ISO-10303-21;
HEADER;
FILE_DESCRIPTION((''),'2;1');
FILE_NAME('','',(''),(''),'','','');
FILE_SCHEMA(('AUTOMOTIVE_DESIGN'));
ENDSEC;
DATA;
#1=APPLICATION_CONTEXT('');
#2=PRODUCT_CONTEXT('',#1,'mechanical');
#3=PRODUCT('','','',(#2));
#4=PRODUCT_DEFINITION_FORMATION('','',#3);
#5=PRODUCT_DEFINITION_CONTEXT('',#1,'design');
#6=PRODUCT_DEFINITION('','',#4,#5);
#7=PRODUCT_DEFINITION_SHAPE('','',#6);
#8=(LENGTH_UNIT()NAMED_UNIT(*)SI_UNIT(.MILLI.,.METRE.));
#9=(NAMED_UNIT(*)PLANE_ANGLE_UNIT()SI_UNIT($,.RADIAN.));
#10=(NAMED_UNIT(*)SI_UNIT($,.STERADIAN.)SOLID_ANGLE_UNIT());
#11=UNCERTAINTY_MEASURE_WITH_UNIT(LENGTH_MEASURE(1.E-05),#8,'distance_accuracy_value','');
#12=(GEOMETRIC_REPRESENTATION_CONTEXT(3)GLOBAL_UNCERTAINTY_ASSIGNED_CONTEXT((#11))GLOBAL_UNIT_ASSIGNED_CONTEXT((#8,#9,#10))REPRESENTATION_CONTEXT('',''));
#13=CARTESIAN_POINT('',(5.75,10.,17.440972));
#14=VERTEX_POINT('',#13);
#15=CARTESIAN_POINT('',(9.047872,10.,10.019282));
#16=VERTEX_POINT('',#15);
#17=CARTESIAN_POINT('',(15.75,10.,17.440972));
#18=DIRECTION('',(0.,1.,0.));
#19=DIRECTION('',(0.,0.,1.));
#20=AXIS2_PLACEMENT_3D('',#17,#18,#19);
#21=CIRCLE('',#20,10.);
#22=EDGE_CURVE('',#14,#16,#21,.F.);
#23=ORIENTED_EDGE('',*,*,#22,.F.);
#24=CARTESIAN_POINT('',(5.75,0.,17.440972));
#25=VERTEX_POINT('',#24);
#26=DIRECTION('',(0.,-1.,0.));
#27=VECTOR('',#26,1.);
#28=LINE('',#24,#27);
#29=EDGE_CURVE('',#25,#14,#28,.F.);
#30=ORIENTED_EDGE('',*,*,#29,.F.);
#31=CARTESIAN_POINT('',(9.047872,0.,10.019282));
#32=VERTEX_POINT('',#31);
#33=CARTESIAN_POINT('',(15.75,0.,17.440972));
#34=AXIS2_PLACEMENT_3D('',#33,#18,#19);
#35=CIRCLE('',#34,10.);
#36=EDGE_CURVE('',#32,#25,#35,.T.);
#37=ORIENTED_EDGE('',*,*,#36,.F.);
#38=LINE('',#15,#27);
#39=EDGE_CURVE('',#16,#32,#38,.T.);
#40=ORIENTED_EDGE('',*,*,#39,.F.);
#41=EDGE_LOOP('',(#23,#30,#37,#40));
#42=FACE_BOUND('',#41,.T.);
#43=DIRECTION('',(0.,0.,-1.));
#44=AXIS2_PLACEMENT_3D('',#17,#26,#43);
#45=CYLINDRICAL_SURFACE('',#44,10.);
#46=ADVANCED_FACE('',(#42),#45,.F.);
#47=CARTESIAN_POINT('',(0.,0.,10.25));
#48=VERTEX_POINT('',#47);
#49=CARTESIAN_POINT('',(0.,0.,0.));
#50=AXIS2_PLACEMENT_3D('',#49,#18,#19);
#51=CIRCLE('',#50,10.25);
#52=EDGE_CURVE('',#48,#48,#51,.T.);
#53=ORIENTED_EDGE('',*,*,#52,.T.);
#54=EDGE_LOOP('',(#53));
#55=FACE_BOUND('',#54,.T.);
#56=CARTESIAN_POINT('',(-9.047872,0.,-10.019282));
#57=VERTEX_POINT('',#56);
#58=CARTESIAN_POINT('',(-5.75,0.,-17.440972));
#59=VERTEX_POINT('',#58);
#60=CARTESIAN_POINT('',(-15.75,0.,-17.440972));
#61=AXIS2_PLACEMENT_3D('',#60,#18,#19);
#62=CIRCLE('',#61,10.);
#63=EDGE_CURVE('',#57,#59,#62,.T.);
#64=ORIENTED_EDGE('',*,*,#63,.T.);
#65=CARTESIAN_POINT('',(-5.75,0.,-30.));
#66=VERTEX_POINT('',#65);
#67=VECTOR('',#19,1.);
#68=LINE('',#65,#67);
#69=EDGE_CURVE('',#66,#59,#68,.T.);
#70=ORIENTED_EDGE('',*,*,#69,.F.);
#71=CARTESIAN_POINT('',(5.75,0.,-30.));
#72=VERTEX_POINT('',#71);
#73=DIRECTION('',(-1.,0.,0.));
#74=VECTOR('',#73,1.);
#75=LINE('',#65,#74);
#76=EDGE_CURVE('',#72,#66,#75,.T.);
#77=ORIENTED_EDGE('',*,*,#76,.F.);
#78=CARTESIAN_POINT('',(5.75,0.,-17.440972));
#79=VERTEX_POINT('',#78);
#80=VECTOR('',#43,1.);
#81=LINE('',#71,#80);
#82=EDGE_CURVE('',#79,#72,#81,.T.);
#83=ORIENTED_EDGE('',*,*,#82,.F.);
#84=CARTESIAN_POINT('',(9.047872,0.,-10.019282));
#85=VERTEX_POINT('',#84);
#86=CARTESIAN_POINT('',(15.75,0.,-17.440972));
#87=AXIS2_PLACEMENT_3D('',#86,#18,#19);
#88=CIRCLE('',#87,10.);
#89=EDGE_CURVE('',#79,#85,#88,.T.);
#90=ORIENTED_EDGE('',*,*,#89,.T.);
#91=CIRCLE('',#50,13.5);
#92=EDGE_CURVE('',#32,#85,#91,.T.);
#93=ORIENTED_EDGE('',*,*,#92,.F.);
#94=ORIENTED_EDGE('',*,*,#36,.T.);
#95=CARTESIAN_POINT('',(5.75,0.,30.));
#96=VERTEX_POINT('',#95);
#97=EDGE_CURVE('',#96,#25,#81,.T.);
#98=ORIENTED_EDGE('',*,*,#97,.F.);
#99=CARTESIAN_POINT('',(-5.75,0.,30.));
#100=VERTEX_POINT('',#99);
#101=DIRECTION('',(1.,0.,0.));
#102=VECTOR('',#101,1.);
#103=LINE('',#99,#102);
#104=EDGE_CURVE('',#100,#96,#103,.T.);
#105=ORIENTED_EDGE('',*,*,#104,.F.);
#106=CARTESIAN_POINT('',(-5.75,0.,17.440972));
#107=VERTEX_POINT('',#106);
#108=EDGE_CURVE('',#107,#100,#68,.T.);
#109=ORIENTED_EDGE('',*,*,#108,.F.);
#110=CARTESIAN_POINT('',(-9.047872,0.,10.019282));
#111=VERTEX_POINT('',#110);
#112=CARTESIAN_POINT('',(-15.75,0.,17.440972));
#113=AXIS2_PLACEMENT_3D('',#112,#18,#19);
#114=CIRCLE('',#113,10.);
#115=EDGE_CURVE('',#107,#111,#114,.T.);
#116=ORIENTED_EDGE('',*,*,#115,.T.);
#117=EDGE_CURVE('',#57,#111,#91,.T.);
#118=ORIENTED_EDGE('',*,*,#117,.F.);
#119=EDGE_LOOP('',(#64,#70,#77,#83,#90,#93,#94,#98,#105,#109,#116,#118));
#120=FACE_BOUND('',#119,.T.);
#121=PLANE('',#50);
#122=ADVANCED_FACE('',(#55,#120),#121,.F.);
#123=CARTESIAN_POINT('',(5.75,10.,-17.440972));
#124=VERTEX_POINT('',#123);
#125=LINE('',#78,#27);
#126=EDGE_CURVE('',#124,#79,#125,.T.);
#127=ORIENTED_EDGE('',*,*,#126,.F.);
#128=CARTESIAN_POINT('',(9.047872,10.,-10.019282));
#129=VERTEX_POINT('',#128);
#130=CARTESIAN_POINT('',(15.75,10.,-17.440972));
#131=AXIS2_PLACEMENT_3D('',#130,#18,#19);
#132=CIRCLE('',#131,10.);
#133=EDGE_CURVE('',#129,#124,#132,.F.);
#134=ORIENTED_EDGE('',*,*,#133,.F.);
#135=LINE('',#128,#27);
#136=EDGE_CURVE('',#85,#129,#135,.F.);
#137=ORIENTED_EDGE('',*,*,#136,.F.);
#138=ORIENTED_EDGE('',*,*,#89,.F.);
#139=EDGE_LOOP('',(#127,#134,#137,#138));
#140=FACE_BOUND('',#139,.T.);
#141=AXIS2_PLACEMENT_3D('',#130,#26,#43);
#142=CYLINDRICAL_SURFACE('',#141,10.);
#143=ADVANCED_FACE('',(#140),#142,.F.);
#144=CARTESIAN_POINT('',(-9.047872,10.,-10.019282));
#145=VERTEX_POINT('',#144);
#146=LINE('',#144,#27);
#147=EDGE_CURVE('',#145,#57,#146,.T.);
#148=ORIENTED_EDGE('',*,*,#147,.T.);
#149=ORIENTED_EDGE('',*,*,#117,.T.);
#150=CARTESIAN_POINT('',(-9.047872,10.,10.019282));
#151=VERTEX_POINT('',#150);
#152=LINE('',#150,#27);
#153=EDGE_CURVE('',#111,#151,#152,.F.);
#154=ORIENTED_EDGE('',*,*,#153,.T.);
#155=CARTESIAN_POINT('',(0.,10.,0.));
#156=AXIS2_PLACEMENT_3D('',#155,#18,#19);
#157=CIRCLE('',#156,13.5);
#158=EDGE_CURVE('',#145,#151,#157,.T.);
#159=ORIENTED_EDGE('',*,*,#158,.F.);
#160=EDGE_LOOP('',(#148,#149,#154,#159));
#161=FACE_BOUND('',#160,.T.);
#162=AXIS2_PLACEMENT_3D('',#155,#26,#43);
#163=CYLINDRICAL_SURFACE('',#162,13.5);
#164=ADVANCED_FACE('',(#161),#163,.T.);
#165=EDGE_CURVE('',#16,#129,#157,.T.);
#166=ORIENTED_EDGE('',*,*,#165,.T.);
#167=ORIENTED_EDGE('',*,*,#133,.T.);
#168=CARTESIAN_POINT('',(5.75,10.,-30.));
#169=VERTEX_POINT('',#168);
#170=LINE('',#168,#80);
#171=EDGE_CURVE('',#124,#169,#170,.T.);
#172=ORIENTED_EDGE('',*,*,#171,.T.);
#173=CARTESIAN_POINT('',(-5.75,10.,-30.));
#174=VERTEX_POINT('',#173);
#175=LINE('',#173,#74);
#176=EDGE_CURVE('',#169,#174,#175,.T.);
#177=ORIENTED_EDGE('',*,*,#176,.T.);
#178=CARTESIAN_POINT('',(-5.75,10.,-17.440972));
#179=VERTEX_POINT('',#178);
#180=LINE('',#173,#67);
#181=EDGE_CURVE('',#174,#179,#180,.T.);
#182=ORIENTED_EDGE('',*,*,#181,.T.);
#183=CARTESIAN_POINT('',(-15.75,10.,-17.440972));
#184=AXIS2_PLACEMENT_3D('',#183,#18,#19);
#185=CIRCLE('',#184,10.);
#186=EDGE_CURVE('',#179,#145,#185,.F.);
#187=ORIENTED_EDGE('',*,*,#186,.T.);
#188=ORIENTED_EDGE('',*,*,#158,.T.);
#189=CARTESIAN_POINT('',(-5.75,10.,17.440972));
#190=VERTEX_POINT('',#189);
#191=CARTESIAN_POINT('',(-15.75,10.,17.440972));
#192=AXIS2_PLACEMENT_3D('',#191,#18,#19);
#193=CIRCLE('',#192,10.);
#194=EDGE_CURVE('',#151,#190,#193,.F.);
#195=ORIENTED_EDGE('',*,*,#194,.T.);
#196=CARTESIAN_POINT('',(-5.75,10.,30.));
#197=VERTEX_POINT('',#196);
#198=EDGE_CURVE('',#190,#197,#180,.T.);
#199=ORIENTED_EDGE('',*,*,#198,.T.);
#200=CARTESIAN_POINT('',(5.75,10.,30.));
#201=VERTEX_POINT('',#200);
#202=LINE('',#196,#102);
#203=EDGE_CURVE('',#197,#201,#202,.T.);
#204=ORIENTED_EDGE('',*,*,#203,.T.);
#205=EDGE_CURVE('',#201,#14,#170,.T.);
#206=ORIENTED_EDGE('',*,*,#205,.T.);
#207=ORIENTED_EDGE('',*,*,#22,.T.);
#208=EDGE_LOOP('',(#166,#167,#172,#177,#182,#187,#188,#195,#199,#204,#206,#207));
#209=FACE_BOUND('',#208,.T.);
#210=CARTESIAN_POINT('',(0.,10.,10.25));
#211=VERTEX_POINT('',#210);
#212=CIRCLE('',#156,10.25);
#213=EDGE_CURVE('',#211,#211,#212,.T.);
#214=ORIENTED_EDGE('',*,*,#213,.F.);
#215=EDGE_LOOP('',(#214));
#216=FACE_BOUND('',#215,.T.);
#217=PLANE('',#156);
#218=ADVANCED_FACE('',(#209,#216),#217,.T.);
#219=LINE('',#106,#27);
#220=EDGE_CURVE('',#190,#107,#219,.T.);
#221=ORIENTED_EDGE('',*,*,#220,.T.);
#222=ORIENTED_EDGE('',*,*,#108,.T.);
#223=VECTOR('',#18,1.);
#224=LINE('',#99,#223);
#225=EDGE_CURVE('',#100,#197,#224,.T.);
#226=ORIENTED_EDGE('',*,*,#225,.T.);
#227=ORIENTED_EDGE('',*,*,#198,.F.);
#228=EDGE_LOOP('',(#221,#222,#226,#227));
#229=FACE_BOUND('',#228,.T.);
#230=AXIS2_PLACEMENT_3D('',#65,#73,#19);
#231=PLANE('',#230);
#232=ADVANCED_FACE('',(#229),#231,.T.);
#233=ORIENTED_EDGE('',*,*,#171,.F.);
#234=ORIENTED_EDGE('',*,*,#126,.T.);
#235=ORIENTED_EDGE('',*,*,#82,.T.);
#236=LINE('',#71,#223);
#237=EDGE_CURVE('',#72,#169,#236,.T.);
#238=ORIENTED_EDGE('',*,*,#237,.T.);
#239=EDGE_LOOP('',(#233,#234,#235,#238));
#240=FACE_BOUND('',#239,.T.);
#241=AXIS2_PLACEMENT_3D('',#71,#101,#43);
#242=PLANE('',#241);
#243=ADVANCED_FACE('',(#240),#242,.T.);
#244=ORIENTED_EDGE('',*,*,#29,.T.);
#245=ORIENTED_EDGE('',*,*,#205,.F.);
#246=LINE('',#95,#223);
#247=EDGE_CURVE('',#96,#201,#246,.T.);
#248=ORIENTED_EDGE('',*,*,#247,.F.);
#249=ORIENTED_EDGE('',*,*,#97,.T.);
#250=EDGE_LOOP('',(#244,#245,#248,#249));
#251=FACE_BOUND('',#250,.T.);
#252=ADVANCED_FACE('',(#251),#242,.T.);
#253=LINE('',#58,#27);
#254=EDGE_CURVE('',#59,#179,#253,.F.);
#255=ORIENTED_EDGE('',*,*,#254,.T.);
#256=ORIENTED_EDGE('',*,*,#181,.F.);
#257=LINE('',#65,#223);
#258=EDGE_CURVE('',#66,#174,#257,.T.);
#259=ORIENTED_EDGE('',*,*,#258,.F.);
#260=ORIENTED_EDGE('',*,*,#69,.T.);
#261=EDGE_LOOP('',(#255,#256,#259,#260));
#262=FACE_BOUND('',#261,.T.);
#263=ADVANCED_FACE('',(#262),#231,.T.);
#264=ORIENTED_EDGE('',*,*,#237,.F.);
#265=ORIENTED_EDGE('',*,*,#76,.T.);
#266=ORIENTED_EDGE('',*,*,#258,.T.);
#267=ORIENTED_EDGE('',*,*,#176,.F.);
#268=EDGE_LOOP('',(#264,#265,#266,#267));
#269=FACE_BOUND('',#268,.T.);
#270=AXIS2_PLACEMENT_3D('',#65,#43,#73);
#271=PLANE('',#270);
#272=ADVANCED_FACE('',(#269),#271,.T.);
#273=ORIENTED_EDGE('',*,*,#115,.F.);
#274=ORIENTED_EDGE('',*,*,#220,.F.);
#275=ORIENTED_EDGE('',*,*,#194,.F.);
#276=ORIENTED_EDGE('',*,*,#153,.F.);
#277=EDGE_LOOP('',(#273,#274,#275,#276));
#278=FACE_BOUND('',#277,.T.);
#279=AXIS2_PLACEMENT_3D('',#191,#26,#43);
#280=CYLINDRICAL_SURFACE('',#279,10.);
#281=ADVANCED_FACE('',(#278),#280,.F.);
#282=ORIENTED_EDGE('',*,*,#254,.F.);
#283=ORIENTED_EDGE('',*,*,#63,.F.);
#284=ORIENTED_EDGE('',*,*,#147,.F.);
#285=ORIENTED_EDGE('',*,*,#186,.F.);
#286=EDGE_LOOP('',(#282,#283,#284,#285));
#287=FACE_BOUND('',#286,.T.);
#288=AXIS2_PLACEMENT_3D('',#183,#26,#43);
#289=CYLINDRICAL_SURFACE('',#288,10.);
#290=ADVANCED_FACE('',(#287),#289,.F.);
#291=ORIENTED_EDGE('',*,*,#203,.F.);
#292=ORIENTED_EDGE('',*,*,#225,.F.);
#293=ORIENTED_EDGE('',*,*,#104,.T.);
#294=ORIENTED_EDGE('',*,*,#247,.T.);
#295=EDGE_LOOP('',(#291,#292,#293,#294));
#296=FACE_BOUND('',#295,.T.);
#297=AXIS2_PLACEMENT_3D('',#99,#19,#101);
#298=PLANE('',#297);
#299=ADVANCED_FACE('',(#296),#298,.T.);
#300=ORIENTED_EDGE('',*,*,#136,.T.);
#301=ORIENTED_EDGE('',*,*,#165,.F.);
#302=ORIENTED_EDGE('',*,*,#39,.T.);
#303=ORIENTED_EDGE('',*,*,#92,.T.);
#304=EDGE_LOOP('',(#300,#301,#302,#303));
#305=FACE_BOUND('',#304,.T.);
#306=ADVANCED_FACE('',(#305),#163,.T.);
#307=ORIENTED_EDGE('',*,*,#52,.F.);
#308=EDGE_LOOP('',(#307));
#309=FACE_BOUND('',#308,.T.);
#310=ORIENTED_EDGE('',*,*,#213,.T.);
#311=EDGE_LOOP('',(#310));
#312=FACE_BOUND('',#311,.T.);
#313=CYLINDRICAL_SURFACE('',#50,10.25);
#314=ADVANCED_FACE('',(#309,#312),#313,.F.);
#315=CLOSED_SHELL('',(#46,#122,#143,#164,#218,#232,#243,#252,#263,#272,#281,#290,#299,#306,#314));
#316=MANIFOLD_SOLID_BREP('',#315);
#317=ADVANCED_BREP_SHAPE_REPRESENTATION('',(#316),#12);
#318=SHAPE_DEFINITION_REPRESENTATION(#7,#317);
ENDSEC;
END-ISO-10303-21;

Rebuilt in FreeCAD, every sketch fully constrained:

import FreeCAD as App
import Part
import Sketcher
from FreeCAD import Vector


def edges_at(feature, points):
    """Names of the edges that pass closest to the given points."""
    edges = feature.Shape.Edges
    near = lambda p: min(range(len(edges)), key=lambda i: edges[i].distToShape(Part.Vertex(*p))[0])
    return sorted({f"Edge{near(p) + 1}" for p in points})

doc = App.newDocument("Part")
params = doc.addObject("Spreadsheet::Sheet", "Params")
for row, (alias, value) in enumerate([
    ("sketch1_diameter", "27 mm"),
    ("pad1_length", "10 mm"),
    ("sketch2_height", "60 mm"),
    ("sketch2_width", "11.5 mm"),
    ("pad2_length", "10 mm"),
    ("sketch3_diameter", "20.5 mm"),
    ("pocket1_length", "10 mm"),
    ("fillet_radius", "10 mm"),
], start=1):
    params.set(f"A{row}", alias)
    params.set(f"B{row}", "=" + value)
    params.setAlias(f"B{row}", alias)

body = doc.addObject("PartDesign::Body", "Body")

# Sketch on XZ plane
sketch1 = doc.addObject("Sketcher::SketchObject", "Sketch")
body.addObject(sketch1)
sketch1.AttachmentSupport = (doc.XZ_Plane, [""])
sketch1.MapMode = "FlatFace"
sketch1.addGeometry(Part.Circle(Vector(0, 0, 0), Vector(0, 0, 1), 14), False)
sketch1.addConstraint([
    Sketcher.Constraint("Coincident", 0, 3, -1, 1),
    Sketcher.Constraint("Diameter", 0, 27.0),
])
sketch1.setExpression("Constraints[1]", "Params.sketch1_diameter")
pad1 = doc.addObject("PartDesign::Pad", "Pad")
body.addObject(pad1)
pad1.Profile = sketch1
pad1.setExpression("Length", "Params.pad1_length")
pad1.Reversed = True

# Sketch on XZ plane
sketch2 = doc.addObject("Sketcher::SketchObject", "Sketch001")
body.addObject(sketch2)
sketch2.AttachmentSupport = (doc.XZ_Plane, [""])
sketch2.MapMode = "FlatFace"
sketch2.AttachmentOffset = App.Placement(Vector(0, 0, -10), App.Rotation())
sketch2.addGeometry([
    Part.LineSegment(Vector(-6, -30, 0), Vector(-6, 30, 0)),
    Part.LineSegment(Vector(-6, 30, 0), Vector(6, 30, 0)),
    Part.LineSegment(Vector(6, 30, 0), Vector(6, -30, 0)),
    Part.LineSegment(Vector(6, -30, 0), Vector(-6, -30, 0)),
], False)
sketch2.addConstraint([
    Sketcher.Constraint("Coincident", 0, 2, 1, 1),
    Sketcher.Constraint("Coincident", 1, 2, 2, 1),
    Sketcher.Constraint("Coincident", 2, 2, 3, 1),
    Sketcher.Constraint("Coincident", 3, 2, 0, 1),
    Sketcher.Constraint("Vertical", 0),
    Sketcher.Constraint("Horizontal", 1),
    Sketcher.Constraint("Vertical", 2),
    Sketcher.Constraint("Horizontal", 3),
    Sketcher.Constraint("Symmetric", 0, 2, 2, 2, -1, 1),
    Sketcher.Constraint("DistanceY", 0, 1, 0, 2, 60.0),
    Sketcher.Constraint("DistanceX", 1, 1, 1, 2, 11.5),
])
sketch2.setExpression("Constraints[9]", "Params.sketch2_height")
sketch2.setExpression("Constraints[10]", "Params.sketch2_width")
pad2 = doc.addObject("PartDesign::Pad", "Pad001")
body.addObject(pad2)
pad2.Profile = sketch2
pad2.setExpression("Length", "Params.pad2_length")

# Sketch on XZ plane
sketch3 = doc.addObject("Sketcher::SketchObject", "Sketch002")
body.addObject(sketch3)
sketch3.AttachmentSupport = (doc.XZ_Plane, [""])
sketch3.MapMode = "FlatFace"
sketch3.AttachmentOffset = App.Placement(Vector(0, 0, -10), App.Rotation())
sketch3.addGeometry(Part.Circle(Vector(0, 0, 0), Vector(0, 0, 1), 10), False)
sketch3.addConstraint([
    Sketcher.Constraint("Coincident", 0, 3, -1, 1),
    Sketcher.Constraint("Diameter", 0, 20.5),
])
sketch3.setExpression("Constraints[1]", "Params.sketch3_diameter")
pocket1 = doc.addObject("PartDesign::Pocket", "Pocket")
body.addObject(pocket1)
pocket1.Profile = sketch3
pocket1.setExpression("Length", "Params.pocket1_length")
pocket1.Reversed = True
doc.recompute()

fillet = doc.addObject("PartDesign::Fillet", "Fillet")
body.addObject(fillet)
fillet.Base = (pocket1, edges_at(pocket1, [
    (-5.75, 5, -12.214),
    (-5.75, 5, 12.214),
    (5.75, 5, 12.214),
    (5.75, 5, -12.214),
]))
fillet.setExpression("Radius", "Params.fillet_radius")

doc.recompute()
